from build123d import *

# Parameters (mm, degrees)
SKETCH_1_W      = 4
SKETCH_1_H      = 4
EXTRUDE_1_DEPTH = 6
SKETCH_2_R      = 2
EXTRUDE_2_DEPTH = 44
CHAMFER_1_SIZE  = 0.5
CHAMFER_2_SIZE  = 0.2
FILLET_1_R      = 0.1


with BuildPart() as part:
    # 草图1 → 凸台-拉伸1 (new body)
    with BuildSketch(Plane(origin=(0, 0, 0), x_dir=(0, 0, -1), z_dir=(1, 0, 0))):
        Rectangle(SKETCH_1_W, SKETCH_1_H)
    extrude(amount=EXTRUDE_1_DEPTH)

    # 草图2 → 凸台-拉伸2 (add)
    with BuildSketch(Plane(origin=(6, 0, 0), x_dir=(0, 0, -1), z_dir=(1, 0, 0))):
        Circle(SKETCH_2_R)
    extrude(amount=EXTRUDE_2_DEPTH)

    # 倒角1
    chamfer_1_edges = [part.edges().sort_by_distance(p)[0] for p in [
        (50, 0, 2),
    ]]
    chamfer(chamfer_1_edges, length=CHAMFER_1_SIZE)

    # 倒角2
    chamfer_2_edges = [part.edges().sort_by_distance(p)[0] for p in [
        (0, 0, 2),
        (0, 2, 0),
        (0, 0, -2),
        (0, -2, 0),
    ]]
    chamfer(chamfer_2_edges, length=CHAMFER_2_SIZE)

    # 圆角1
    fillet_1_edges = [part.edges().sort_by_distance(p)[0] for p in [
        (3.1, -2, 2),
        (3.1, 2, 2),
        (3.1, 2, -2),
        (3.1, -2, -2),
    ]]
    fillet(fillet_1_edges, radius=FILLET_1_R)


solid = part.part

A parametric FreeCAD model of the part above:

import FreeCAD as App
import Part
import Sketcher
from FreeCAD import Vector
Q = App.Units.Quantity


def edges_at(feature, points):
    """Names of the edges that pass closest to the given points."""
    edges = feature.Shape.Edges
    near = lambda p: min(range(len(edges)), key=lambda i: edges[i].distToShape(Part.Vertex(*p))[0])
    return sorted({f"Edge{near(p) + 1}" for p in points})


def add_polygon(sketch, points):
    """Adds a closed chain of lines whose ends are joined by coincident constraints."""
    first, n = sketch.GeometryCount, len(points)
    for a, b in zip(points, points[1:] + points[:1]):
        sketch.addGeometry(Part.LineSegment(App.Vector(*a, 0), App.Vector(*b, 0)), False)
    for i in range(n):
        sketch.addConstraint(Sketcher.Constraint("Coincident", first + i, 2, first + (i + 1) % n, 1))

doc = App.newDocument("Part")
params = doc.addObject("Spreadsheet::Sheet", "Params")
for row, (alias, value) in enumerate([
    ("sketch1_width", "4 mm"),
    ("pad1_length", "6 mm"),
    ("sketch2_diameter", "4 mm"),
    ("pad2_length", "44 mm"),
    ("chamfer_size", "0.5 mm"),
    ("chamfer2_size", "0.2 mm"),
    ("fillet_radius", "0.1 mm"),
], start=1):
    params.set(f"A{row}", alias)
    params.set(f"B{row}", "=" + value)
    params.setAlias(f"B{row}", alias)

body = doc.addObject("PartDesign::Body", "Body")

sketch1 = doc.addObject("Sketcher::SketchObject", "Sketch")
body.addObject(sketch1)
sketch1.AttachmentSupport = (doc.YZ_Plane, [""])
sketch1.MapMode = "FlatFace"
add_polygon(sketch1, [(2, 2), (-2, 2), (-2, -2), (2, -2)])
sketch1.addConstraint(Sketcher.Constraint("Horizontal", 0))
sketch1.addConstraint(Sketcher.Constraint("Vertical", 1))
sketch1.addConstraint(Sketcher.Constraint("Horizontal", 2))
sketch1.addConstraint(Sketcher.Constraint("Vertical", 3))
sketch1.addConstraint(Sketcher.Constraint("Symmetric", 0, 2, 2, 2, -1, 1))
sketch1.addConstraint(Sketcher.Constraint("Equal", 2, 1))
sketch1.addConstraint(Sketcher.Constraint("DistanceX", 0, 2, 0, 1, Q("4 mm")))
sketch1.setExpression("Constraints[10]", "Params.sketch1_width")
pad1 = doc.addObject("PartDesign::Pad", "Pad")
body.addObject(pad1)
pad1.Profile = sketch1
pad1.setExpression("Length", "Params.pad1_length")

sketch2 = doc.addObject("Sketcher::SketchObject", "Sketch001")
body.addObject(sketch2)
sketch2.AttachmentSupport = (doc.YZ_Plane, [""])
sketch2.MapMode = "FlatFace"
sketch2.AttachmentOffset = App.Placement(Vector(0, 0, 6), App.Rotation())
sketch2.addGeometry(Part.Circle(Vector(0, 0, 0), Vector(0, 0, 1), 2), False)
sketch2.addConstraint(Sketcher.Constraint("Coincident", 0, 3, -1, 1))
sketch2.addConstraint(Sketcher.Constraint("Diameter", 0, Q("4 mm")))
sketch2.setExpression("Constraints[1]", "Params.sketch2_diameter")
pad2 = doc.addObject("PartDesign::Pad", "Pad001")
body.addObject(pad2)
pad2.Profile = sketch2
pad2.setExpression("Length", "Params.pad2_length")
doc.recompute()

chamfer = doc.addObject("PartDesign::Chamfer", "Chamfer")
body.addObject(chamfer)
chamfer.Base = (pad2, edges_at(pad2, [(50, 0, 2)]))
chamfer.setExpression("Size", "Params.chamfer_size")
doc.recompute()

chamfer2 = doc.addObject("PartDesign::Chamfer", "Chamfer001")
body.addObject(chamfer2)
chamfer2.Base = (chamfer, edges_at(chamfer, [
    (0, 0, 2),
    (0, 2, 0),
    (0, 0, -2),
    (0, -2, 0),
]))
chamfer2.setExpression("Size", "Params.chamfer2_size")
doc.recompute()

fillet = doc.addObject("PartDesign::Fillet", "Fillet")
body.addObject(fillet)
fillet.Base = (chamfer2, edges_at(chamfer2, [
    (3.1, -2, 2),
    (3.1, 2, 2),
    (3.1, 2, -2),
    (3.1, -2, -2),
]))
fillet.setExpression("Radius", "Params.fillet_radius")

doc.recompute()
